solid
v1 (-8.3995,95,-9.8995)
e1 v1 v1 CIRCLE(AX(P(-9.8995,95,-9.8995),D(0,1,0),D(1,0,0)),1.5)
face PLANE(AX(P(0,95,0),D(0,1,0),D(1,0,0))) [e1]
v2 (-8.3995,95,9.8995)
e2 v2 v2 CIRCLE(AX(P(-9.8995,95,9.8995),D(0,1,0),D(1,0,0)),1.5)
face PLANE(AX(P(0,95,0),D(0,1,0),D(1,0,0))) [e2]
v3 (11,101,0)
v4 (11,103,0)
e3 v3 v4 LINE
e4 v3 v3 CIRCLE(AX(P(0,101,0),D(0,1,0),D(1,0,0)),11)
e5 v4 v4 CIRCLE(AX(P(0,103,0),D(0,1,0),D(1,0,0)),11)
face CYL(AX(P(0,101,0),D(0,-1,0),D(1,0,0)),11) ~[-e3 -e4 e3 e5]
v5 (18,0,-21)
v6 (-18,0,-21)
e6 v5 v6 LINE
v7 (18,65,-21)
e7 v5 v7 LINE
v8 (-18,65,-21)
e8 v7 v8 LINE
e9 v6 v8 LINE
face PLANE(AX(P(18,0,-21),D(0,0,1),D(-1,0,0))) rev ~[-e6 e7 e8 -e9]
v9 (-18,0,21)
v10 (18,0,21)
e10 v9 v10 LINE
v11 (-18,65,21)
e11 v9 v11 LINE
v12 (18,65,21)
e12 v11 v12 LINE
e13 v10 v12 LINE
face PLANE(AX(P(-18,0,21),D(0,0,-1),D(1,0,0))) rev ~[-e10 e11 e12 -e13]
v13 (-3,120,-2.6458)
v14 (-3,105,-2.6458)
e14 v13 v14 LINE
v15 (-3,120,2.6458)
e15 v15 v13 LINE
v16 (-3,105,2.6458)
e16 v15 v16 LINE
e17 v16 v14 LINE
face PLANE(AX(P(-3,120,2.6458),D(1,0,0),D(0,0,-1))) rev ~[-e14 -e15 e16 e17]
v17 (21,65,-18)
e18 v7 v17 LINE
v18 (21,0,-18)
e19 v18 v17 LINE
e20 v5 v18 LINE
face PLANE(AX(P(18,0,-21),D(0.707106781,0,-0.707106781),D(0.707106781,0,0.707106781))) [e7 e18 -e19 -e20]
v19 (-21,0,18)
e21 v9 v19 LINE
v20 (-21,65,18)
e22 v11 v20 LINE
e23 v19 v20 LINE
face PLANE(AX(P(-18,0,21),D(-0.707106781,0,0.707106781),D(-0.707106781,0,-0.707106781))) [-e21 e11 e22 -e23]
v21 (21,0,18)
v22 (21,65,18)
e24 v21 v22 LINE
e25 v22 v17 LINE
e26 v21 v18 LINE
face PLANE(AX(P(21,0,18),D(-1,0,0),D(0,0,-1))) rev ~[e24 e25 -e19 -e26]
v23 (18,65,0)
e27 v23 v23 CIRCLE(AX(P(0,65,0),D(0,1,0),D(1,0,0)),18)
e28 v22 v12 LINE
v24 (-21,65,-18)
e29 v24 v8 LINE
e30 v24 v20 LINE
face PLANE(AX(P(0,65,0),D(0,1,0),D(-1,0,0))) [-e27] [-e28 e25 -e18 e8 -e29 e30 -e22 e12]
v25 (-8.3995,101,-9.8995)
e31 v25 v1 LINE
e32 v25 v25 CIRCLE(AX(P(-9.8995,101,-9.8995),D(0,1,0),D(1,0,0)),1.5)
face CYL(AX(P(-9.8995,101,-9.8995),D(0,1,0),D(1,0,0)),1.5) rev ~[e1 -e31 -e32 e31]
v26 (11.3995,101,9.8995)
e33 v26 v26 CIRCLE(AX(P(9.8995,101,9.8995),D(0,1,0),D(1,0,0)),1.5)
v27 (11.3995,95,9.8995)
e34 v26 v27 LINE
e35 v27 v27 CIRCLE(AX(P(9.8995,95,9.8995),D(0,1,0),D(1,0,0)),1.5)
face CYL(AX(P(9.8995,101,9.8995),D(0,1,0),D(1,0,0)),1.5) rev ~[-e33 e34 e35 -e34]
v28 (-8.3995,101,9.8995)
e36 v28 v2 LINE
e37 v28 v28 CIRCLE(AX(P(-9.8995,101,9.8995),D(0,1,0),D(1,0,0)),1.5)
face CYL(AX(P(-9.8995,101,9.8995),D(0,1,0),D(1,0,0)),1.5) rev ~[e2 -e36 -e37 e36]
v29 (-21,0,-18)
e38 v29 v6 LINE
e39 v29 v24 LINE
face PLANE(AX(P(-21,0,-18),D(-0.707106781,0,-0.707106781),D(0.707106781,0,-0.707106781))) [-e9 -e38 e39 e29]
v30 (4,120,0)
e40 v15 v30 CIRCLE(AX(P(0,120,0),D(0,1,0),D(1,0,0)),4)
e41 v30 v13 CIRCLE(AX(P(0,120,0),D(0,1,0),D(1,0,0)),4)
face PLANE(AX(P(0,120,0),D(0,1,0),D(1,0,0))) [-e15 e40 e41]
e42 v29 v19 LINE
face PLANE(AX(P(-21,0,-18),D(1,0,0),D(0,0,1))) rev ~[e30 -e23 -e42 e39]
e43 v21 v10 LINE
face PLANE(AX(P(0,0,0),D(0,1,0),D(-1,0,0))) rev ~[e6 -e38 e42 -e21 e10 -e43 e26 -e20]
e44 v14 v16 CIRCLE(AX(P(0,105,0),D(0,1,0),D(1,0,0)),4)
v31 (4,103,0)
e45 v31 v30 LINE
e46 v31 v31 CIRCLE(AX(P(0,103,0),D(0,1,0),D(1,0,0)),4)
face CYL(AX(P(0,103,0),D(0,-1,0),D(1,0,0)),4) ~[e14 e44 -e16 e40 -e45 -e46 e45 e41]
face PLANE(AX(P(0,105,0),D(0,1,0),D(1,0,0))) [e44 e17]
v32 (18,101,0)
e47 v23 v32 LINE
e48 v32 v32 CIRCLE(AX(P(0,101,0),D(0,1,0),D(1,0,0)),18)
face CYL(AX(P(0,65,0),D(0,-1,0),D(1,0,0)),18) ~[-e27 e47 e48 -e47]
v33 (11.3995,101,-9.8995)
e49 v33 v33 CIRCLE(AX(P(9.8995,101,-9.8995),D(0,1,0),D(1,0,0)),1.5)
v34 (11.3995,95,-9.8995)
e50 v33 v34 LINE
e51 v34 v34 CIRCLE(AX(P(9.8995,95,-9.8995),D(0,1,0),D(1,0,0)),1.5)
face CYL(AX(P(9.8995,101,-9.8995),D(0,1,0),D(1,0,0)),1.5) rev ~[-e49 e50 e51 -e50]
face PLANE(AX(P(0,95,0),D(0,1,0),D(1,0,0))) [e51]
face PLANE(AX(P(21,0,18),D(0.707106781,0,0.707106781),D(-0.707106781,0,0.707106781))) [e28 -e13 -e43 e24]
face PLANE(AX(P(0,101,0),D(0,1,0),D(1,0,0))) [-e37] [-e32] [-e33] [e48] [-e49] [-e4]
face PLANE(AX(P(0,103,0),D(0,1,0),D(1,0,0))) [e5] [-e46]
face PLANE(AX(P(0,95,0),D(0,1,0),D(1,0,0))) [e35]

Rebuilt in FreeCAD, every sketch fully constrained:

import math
import FreeCAD as App
import Part
import Sketcher

V = App.Vector
Q = App.Units.Quantity

doc = App.newDocument("Part")
params = doc.addObject("Spreadsheet::Sheet", "Params")
for row, (alias, value) in enumerate([
    ("pad1_length", "65 mm"),
    ("sketch2_diameter", "36 mm"),
    ("pad2_length", "36 mm"),
    ("sketch3_diameter", "3 mm"),
    ("pocket1_length", "6 mm"),
    ("sketch4_diameter", "22 mm"),
    ("pad3_length", "2 mm"),
    ("sketch5_diameter", "8 mm"),
    ("pad4_length", "17 mm"),
    ("sketch6_radius", "4 mm"),
    ("pocket2_length", "15 mm"),
], start=1):
    params.set(f"A{row}", alias)
    params.set(f"B{row}", "=" + value)
    params.setAlias(f"B{row}", alias)

body = doc.addObject("PartDesign::Body", "Body")

# Sketch on XZ plane
sketch1 = body.newObject("Sketcher::SketchObject", "Sketch")
sketch1.AttachmentSupport = (doc.getObject("XZ_Plane"), [""])
sketch1.MapMode = "FlatFace"
sketch1.addGeometry([
    Part.LineSegment(V(-21, 18, 0), V(-18, 21, 0)),  # 0
    Part.LineSegment(V(-18, 21, 0), V(18, 21, 0)),  # 1
    Part.LineSegment(V(18, 21, 0), V(21, 18, 0)),  # 2
    Part.LineSegment(V(21, 18, 0), V(21, -18, 0)),  # 3
    Part.LineSegment(V(21, -18, 0), V(18, -21, 0)),  # 4
    Part.LineSegment(V(18, -21, 0), V(-18, -21, 0)),  # 5
    Part.LineSegment(V(-18, -21, 0), V(-21, -18, 0)),  # 6
    Part.LineSegment(V(-21, -18, 0), V(-21, 18, 0)),  # 7
], False)
sketch1.addConstraint([
    Sketcher.Constraint("Coincident", 0, 2, 1, 1),
    Sketcher.Constraint("Coincident", 1, 2, 2, 1),
    Sketcher.Constraint("Coincident", 2, 2, 3, 1),
    Sketcher.Constraint("Coincident", 3, 2, 4, 1),
    Sketcher.Constraint("Coincident", 4, 2, 5, 1),
    Sketcher.Constraint("Coincident", 5, 2, 6, 1),
    Sketcher.Constraint("Coincident", 6, 2, 7, 1),
    Sketcher.Constraint("Coincident", 7, 2, 0, 1),
    Sketcher.Constraint("Horizontal", 1),
    Sketcher.Constraint("Vertical", 3),
    Sketcher.Constraint("Horizontal", 5),
    Sketcher.Constraint("Vertical", 7),
    Sketcher.Constraint("Symmetric", 0, 2, 4, 2, -1, 1),
    Sketcher.Constraint("Symmetric", 2, 2, 6, 2, -1, 1),
    Sketcher.Constraint("Perpendicular", 0, 2),
    Sketcher.Constraint("Perpendicular", 2, 4),
    Sketcher.Constraint("Perpendicular", 4, 6),
    Sketcher.Constraint("Horizontal", 3, 2, 6, 2),
    Sketcher.Constraint("Vertical", 1, 2, 4, 2),
    Sketcher.Constraint("Equal", 5, 3),
    Sketcher.Constraint("DistanceX", 1, 2, 2, 2, Q("3 mm")),
    Sketcher.Constraint("DistanceY", 4, 2, 1, 2, Q("42 mm")),
])
pad1 = body.newObject("PartDesign::Pad", "Pad")
pad1.Profile = sketch1
pad1.setExpression("Length", "Params.pad1_length")
pad1.Reversed = True

# Sketch on XZ plane
sketch2 = body.newObject("Sketcher::SketchObject", "Sketch001")
sketch2.AttachmentSupport = (doc.getObject("XZ_Plane"), [""])
sketch2.MapMode = "FlatFace"
sketch2.AttachmentOffset = App.Placement(V(0, 0, -65), App.Rotation())
sketch2.addGeometry(Part.Circle(V(0, 0, 0), V(0, 0, 1), 18), False)
sketch2.addConstraint([
    Sketcher.Constraint("Coincident", 0, 3, -1, 1),
    Sketcher.Constraint("Diameter", 0, Q("36 mm")),
])
sketch2.setExpression("Constraints[1]", "Params.sketch2_diameter")
pad2 = body.newObject("PartDesign::Pad", "Pad001")
pad2.Profile = sketch2
pad2.setExpression("Length", "Params.pad2_length")
pad2.Reversed = True

# Sketch on XZ plane
sketch3 = body.newObject("Sketcher::SketchObject", "Sketch002")
sketch3.AttachmentSupport = (doc.getObject("XZ_Plane"), [""])
sketch3.MapMode = "FlatFace"
sketch3.AttachmentOffset = App.Placement(V(0, 0, -101), App.Rotation())
sketch3.addGeometry([
    Part.Circle(V(-9.9, 9.9, 0), V(0, 0, 1), 1.5),
    Part.Circle(V(9.9, 9.9, 0), V(0, 0, 1), 1.5),
    Part.Circle(V(9.9, -9.9, 0), V(0, 0, 1), 1.5),
    Part.Circle(V(-9.9, -9.9, 0), V(0, 0, 1), 1.5),
], False)
sketch3.addConstraint([
    Sketcher.Constraint("Equal", 0, 1),
    Sketcher.Constraint("Equal", 1, 2),
    Sketcher.Constraint("Equal", 2, 3),
    Sketcher.Constraint("Symmetric", 0, 3, 2, 3, -1, 1),
    Sketcher.Constraint("Symmetric", 1, 3, 3, 3, -1, 1),
    Sketcher.Constraint("Symmetric", 0, 3, 1, 3, -2),
    Sketcher.Constraint("Diameter", 0, Q("3 mm")),
    Sketcher.Constraint("DistanceX", 0, 3, 1, 3, Q("19.799 mm")),
    Sketcher.Constraint("DistanceY", 2, 3, 1, 3, Q("19.799 mm")),
])
sketch3.setExpression("Constraints[6]", "Params.sketch3_diameter")
pocket1 = body.newObject("PartDesign::Pocket", "Pocket")
pocket1.Profile = sketch3
pocket1.setExpression("Length", "Params.pocket1_length")
pocket1.Reversed = True

# Sketch on XZ plane
sketch4 = body.newObject("Sketcher::SketchObject", "Sketch003")
sketch4.AttachmentSupport = (doc.getObject("XZ_Plane"), [""])
sketch4.MapMode = "FlatFace"
sketch4.AttachmentOffset = App.Placement(V(0, 0, -101), App.Rotation())
sketch4.addGeometry(Part.Circle(V(0, 0, 0), V(0, 0, 1), 11), False)
sketch4.addConstraint([
    Sketcher.Constraint("Coincident", 0, 3, -1, 1),
    Sketcher.Constraint("Diameter", 0, Q("22 mm")),
])
sketch4.setExpression("Constraints[1]", "Params.sketch4_diameter")
pad3 = body.newObject("PartDesign::Pad", "Pad002")
pad3.Profile = sketch4
pad3.setExpression("Length", "Params.pad3_length")
pad3.Reversed = True

# Sketch on XZ plane
sketch5 = body.newObject("Sketcher::SketchObject", "Sketch004")
sketch5.AttachmentSupport = (doc.getObject("XZ_Plane"), [""])
sketch5.MapMode = "FlatFace"
sketch5.AttachmentOffset = App.Placement(V(0, 0, -103), App.Rotation())
sketch5.addGeometry(Part.Circle(V(0, 0, 0), V(0, 0, 1), 4), False)
sketch5.addConstraint([
    Sketcher.Constraint("Coincident", 0, 3, -1, 1),
    Sketcher.Constraint("Diameter", 0, Q("8 mm")),
])
sketch5.setExpression("Constraints[1]", "Params.sketch5_diameter")
pad4 = body.newObject("PartDesign::Pad", "Pad003")
pad4.Profile = sketch5
pad4.setExpression("Length", "Params.pad4_length")
pad4.Reversed = True

# Sketch on XZ plane
sketch6 = body.newObject("Sketcher::SketchObject", "Sketch005")
sketch6.AttachmentSupport = (doc.getObject("XZ_Plane"), [""])
sketch6.MapMode = "FlatFace"
sketch6.AttachmentOffset = App.Placement(V(0, 0, -120), App.Rotation())
sketch6.addGeometry([
    Part.LineSegment(V(-3, 2.6, 0), V(-3, -2.6, 0)),
    Part.ArcOfCircle(Part.Circle(V(0, 0, 0), V(0, 0, 1), 4), math.radians(139), math.radians(221)),
], False)
sketch6.addConstraint([
    Sketcher.Constraint("Coincident", 0, 1, 1, 1),
    Sketcher.Constraint("Coincident", 1, 2, 0, 2),
    Sketcher.Constraint("Vertical", 0),
    Sketcher.Constraint("Coincident", 1, 3, -1, 1),
    Sketcher.Constraint("Radius", 1, Q("4 mm")),
    Sketcher.Constraint("DistanceX", 0, 1, -1, 1, Q("3 mm")),
])
sketch6.setExpression("Constraints[4]", "Params.sketch6_radius")
pocket2 = body.newObject("PartDesign::Pocket", "Pocket001")
pocket2.Profile = sketch6
pocket2.setExpression("Length", "Params.pocket2_length")
pocket2.Reversed = True

doc.recompute()
